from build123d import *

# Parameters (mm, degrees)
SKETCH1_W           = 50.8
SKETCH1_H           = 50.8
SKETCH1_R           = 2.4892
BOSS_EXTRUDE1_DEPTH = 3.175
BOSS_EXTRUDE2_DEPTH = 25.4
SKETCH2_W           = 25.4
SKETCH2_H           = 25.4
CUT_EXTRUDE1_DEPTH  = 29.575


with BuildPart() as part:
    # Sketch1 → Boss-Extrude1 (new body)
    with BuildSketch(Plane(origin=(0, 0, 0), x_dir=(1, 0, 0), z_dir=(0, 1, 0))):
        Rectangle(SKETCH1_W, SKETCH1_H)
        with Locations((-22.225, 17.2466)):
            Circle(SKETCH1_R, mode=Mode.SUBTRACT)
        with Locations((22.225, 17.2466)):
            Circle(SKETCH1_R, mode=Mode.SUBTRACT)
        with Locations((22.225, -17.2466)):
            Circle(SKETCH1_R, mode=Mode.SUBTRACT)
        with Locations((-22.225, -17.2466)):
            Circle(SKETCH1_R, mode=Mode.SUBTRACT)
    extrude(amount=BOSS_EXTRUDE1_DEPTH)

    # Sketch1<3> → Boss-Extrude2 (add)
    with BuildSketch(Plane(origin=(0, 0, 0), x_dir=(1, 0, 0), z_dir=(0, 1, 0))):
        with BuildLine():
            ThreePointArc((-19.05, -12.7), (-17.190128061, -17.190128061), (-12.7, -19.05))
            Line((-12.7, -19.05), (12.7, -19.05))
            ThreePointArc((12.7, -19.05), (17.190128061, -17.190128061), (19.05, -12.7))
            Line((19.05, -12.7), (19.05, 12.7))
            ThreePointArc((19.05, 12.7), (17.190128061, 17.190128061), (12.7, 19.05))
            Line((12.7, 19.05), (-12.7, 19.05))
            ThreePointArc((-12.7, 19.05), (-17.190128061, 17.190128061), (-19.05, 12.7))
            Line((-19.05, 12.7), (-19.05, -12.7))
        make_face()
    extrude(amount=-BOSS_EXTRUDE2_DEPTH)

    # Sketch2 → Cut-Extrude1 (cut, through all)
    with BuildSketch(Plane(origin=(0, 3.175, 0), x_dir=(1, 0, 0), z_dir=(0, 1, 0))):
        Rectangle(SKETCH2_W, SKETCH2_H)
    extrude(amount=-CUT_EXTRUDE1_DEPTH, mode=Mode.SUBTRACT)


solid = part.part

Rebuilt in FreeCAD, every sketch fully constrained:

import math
import FreeCAD as App
import Part
import Sketcher

V = App.Vector
Q = App.Units.Quantity


def add_polygon(sketch, points):
    """Adds a closed chain of lines whose ends are joined by coincident constraints."""
    first, n = sketch.GeometryCount, len(points)
    for a, b in zip(points, points[1:] + points[:1]):
        sketch.addGeometry(Part.LineSegment(App.Vector(*a, 0), App.Vector(*b, 0)), False)
    for i in range(n):
        sketch.addConstraint(Sketcher.Constraint("Coincident", first + i, 2, first + (i + 1) % n, 1))

doc = App.newDocument("Part")
params = doc.addObject("Spreadsheet::Sheet", "Params")
for row, (alias, value) in enumerate([
    ("sketch1_width", "2 in"),
    ("sketch1_diameter", "0.196 in"),
    ("pad1_length", "0.125 in"),
    ("sketch2_width", "1 in"),
    ("sketch2_radius", "0.25 in"),
    ("pad2_length", "1 in"),
    ("sketch3_width", "1 in"),
], start=1):
    params.set(f"A{row}", alias)
    params.set(f"B{row}", "=" + value)
    params.setAlias(f"B{row}", alias)

body = doc.addObject("PartDesign::Body", "Body")

sketch1 = body.newObject("Sketcher::SketchObject", "Sketch")
sketch1.AttachmentSupport = (doc.getObject("XZ_Plane"), [""])
sketch1.MapMode = "FlatFace"
add_polygon(sketch1, [(-25.4, -25.4), (-25.4, 25.4), (25.4, 25.4), (25.4, -25.4)])
sketch1.addGeometry(Part.Circle(V(-22.2, 17.2, 0), V(0, 0, 1), 2.5), False)
sketch1.addGeometry(Part.Circle(V(22.2, 17.2, 0), V(0, 0, 1), 2.5), False)
sketch1.addGeometry(Part.Circle(V(-22.2, -17.2, 0), V(0, 0, 1), 2.5), False)
sketch1.addGeometry(Part.Circle(V(22.2, -17.2, 0), V(0, 0, 1), 2.5), False)
sketch1.addConstraint([
    Sketcher.Constraint("Vertical", 0),
    Sketcher.Constraint("Horizontal", 1),
    Sketcher.Constraint("Vertical", 2),
    Sketcher.Constraint("Horizontal", 3),
    Sketcher.Constraint("Equal", 4, 5),
    Sketcher.Constraint("Equal", 5, 6),
    Sketcher.Constraint("Equal", 6, 7),
    Sketcher.Constraint("Symmetric", 5, 3, 6, 3, -1, 1),
    Sketcher.Constraint("Symmetric", 4, 3, 7, 3, -1, 1),
    Sketcher.Constraint("Symmetric", 0, 2, 2, 2, -1, 1),
    Sketcher.Constraint("Symmetric", 4, 3, 5, 3, -2),
    Sketcher.Constraint("Equal", 3, 0),
    Sketcher.Constraint("DistanceX", 1, 1, 1, 2, Q("2 in")),
    Sketcher.Constraint("Diameter", 4, Q("0.196 in")),
    Sketcher.Constraint("DistanceX", 4, 3, 5, 3, Q("1.75 in")),
    Sketcher.Constraint("DistanceY", -1, 1, 4, 3, Q("0.679 in")),
])
sketch1.setExpression("Constraints[16]", "Params.sketch1_width")
sketch1.setExpression("Constraints[17]", "Params.sketch1_diameter")
pad1 = body.newObject("PartDesign::Pad", "Pad")
pad1.Profile = sketch1
pad1.setExpression("Length", "Params.pad1_length")
pad1.Reversed = True

sketch2 = body.newObject("Sketcher::SketchObject", "Sketch001")
sketch2.AttachmentSupport = (doc.getObject("XZ_Plane"), [""])
sketch2.MapMode = "FlatFace"
sketch2.addGeometry([
    Part.ArcOfCircle(Part.Circle(V(-13, 13, 0), V(0, 0, 1), 6), math.radians(90), math.radians(180)),
    Part.LineSegment(V(-13, 19, 0), V(13, 19, 0)),
    Part.ArcOfCircle(Part.Circle(V(13, 13, 0), V(0, 0, 1), 6), math.radians(0), math.radians(90)),
    Part.LineSegment(V(19, 13, 0), V(19, -13, 0)),
    Part.ArcOfCircle(Part.Circle(V(13, -13, 0), V(0, 0, 1), 6), math.radians(-90), math.radians(0)),
    Part.LineSegment(V(13, -19, 0), V(-13, -19, 0)),
    Part.ArcOfCircle(Part.Circle(V(-13, -13, 0), V(0, 0, 1), 6), math.radians(180), math.radians(270)),
    Part.LineSegment(V(-19, -13, 0), V(-19, 13, 0)),
], False)
sketch2.addConstraint([
    Sketcher.Constraint("Tangent", 0, 1, 1, 1),
    Sketcher.Constraint("Tangent", 1, 2, 2, 2),
    Sketcher.Constraint("Tangent", 2, 1, 3, 1),
    Sketcher.Constraint("Tangent", 3, 2, 4, 2),
    Sketcher.Constraint("Tangent", 4, 1, 5, 1),
    Sketcher.Constraint("Tangent", 5, 2, 6, 2),
    Sketcher.Constraint("Tangent", 6, 1, 7, 1),
    Sketcher.Constraint("Tangent", 7, 2, 0, 2),
    Sketcher.Constraint("Horizontal", 1),
    Sketcher.Constraint("Vertical", 3),
    Sketcher.Constraint("Horizontal", 5),
    Sketcher.Constraint("Vertical", 7),
    Sketcher.Constraint("Equal", 0, 2),
    Sketcher.Constraint("Equal", 2, 4),
    Sketcher.Constraint("Equal", 4, 6),
    Sketcher.Constraint("Symmetric", 0, 3, 4, 3, -1, 1),
    Sketcher.Constraint("Equal", 5, 3),
    Sketcher.Constraint("DistanceX", 1, 1, 1, 2, Q("1 in")),
    Sketcher.Constraint("Radius", 0, Q("0.25 in")),
])
sketch2.setExpression("Constraints[17]", "Params.sketch2_width")
sketch2.setExpression("Constraints[18]", "Params.sketch2_radius")
pad2 = body.newObject("PartDesign::Pad", "Pad001")
pad2.Profile = sketch2
pad2.setExpression("Length", "Params.pad2_length")

sketch3 = body.newObject("Sketcher::SketchObject", "Sketch002")
sketch3.AttachmentSupport = (doc.getObject("XZ_Plane"), [""])
sketch3.MapMode = "FlatFace"
sketch3.AttachmentOffset = App.Placement(V(0, 0, -0.125 * 25.4), App.Rotation())
add_polygon(sketch3, [(-13, -13), (-13, 13), (13, 13), (13, -13)])
sketch3.addConstraint([
    Sketcher.Constraint("Vertical", 0),
    Sketcher.Constraint("Horizontal", 1),
    Sketcher.Constraint("Vertical", 2),
    Sketcher.Constraint("Horizontal", 3),
    Sketcher.Constraint("Symmetric", 0, 2, 2, 2, -1, 1),
    Sketcher.Constraint("Equal", 3, 0),
    Sketcher.Constraint("DistanceX", 1, 1, 1, 2, Q("1 in")),
])
sketch3.setExpression("Constraints[10]", "Params.sketch3_width")
pocket1 = body.newObject("PartDesign::Pocket", "Pocket")
pocket1.Profile = sketch3
pocket1.Type = "ThroughAll"
pocket1.Reversed = True

doc.recompute()
